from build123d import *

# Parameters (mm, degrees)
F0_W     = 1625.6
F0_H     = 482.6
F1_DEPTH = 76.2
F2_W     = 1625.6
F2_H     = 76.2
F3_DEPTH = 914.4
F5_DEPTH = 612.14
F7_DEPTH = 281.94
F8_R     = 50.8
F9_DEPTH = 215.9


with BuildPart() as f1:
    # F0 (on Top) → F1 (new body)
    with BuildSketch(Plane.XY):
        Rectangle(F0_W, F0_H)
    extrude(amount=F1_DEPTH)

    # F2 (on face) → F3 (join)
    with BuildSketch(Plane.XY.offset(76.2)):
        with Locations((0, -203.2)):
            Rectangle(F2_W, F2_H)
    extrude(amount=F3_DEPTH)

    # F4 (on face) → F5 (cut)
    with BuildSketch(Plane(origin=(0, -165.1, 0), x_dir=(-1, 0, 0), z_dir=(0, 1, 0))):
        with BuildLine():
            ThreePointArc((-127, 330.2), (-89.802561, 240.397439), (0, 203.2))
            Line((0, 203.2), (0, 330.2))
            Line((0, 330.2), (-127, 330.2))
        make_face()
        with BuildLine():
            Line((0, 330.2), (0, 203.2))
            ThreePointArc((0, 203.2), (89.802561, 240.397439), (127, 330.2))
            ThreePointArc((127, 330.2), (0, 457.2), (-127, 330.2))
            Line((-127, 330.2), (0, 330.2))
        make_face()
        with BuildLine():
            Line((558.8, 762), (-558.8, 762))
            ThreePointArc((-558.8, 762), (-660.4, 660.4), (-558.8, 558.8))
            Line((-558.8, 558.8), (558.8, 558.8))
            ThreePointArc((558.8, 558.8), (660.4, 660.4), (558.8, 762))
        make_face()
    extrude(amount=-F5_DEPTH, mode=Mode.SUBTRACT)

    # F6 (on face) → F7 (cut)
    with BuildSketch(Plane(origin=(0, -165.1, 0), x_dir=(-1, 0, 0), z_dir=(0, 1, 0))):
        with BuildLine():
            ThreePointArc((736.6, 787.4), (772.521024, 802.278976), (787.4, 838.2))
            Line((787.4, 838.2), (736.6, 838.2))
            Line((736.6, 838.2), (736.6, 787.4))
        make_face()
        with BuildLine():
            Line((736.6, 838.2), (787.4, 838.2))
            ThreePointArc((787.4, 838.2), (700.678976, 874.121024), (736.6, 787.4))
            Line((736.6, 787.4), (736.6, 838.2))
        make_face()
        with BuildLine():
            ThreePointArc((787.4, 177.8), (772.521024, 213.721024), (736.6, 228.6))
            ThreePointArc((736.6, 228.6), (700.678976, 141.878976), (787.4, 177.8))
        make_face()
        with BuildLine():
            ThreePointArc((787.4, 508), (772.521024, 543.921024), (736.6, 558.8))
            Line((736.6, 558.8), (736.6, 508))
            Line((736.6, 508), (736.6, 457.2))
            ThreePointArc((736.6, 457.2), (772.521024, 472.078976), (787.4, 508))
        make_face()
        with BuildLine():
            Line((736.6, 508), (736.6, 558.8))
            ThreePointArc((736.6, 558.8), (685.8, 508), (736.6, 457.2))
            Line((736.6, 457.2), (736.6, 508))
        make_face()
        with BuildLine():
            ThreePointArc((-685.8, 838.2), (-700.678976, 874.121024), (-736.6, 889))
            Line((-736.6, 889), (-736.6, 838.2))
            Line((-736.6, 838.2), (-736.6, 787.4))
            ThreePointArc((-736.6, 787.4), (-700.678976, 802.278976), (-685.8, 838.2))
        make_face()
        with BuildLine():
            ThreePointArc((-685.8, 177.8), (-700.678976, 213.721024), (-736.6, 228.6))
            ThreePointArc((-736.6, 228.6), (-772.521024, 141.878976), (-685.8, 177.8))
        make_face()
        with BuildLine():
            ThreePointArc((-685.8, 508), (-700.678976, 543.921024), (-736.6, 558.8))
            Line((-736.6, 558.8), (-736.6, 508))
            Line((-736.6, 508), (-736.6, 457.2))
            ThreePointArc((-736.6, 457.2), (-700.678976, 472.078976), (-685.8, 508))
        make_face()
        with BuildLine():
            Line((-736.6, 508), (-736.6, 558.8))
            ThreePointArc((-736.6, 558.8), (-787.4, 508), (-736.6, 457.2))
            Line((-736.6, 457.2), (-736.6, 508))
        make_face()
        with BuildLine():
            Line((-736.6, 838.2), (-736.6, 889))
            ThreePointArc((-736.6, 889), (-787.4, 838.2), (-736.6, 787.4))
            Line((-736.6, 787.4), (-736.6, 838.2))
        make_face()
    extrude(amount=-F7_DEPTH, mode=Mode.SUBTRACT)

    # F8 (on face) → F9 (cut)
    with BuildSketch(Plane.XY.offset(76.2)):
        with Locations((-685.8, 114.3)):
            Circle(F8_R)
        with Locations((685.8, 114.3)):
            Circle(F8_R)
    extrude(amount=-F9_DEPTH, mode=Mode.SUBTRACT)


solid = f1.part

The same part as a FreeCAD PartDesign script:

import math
import FreeCAD as App
import Part
import Sketcher

V = App.Vector
Q = App.Units.Quantity


def add_polygon(sketch, points):
    """Adds a closed chain of lines whose ends are joined by coincident constraints."""
    first, n = sketch.GeometryCount, len(points)
    for a, b in zip(points, points[1:] + points[:1]):
        sketch.addGeometry(Part.LineSegment(App.Vector(*a, 0), App.Vector(*b, 0)), False)
    for i in range(n):
        sketch.addConstraint(Sketcher.Constraint("Coincident", first + i, 2, first + (i + 1) % n, 1))

doc = App.newDocument("Part")
params = doc.addObject("Spreadsheet::Sheet", "Params")
for row, (alias, value) in enumerate([
    ("sketch1_width", "64 in"),
    ("sketch1_height", "19 in"),
    ("pad1_length", "3 in"),
    ("sketch2_width", "64 in"),
    ("sketch2_height", "3 in"),
    ("pad2_length", "36 in"),
    ("sketch3_radius", "5 in"),
    ("sketch3_radius2", "4 in"),
    ("sketch3_width", "44 in"),
    ("pocket1_length", "24.1 in"),
    ("sketch4_radius", "2.0000001 in"),
    ("pocket2_length", "11.1 in"),
    ("sketch5_diameter", "4 in"),
    ("pocket3_length", "8.5 in"),
], start=1):
    params.set(f"A{row}", alias)
    params.set(f"B{row}", "=" + value)
    params.setAlias(f"B{row}", alias)

body = doc.addObject("PartDesign::Body", "Body")

# Sketch on XY plane
sketch1 = doc.addObject("Sketcher::SketchObject", "Sketch")
body.addObject(sketch1)
sketch1.AttachmentSupport = (doc.XY_Plane, [""])
sketch1.MapMode = "FlatFace"
add_polygon(sketch1, [(-812.8, 241.3), (-812.8, -241.3), (812.8, -241.3), (812.8, 241.3)])  # lines 0-3
sketch1.addConstraint([
    Sketcher.Constraint("Vertical", 0),
    Sketcher.Constraint("Horizontal", 1),
    Sketcher.Constraint("Vertical", 2),
    Sketcher.Constraint("Horizontal", 3),
    Sketcher.Constraint("Symmetric", 0, 2, 2, 2, -1, 1),
    Sketcher.Constraint("DistanceX", 1, 1, 1, 2, Q("64 in")),
    Sketcher.Constraint("DistanceY", 0, 2, 0, 1, Q("19 in")),
])
sketch1.setExpression("Constraints[9]", "Params.sketch1_width")
sketch1.setExpression("Constraints[10]", "Params.sketch1_height")
pad1 = doc.addObject("PartDesign::Pad", "Pad")
body.addObject(pad1)
pad1.Profile = sketch1
pad1.setExpression("Length", "Params.pad1_length")

# Sketch on XY plane
sketch2 = doc.addObject("Sketcher::SketchObject", "Sketch001")
body.addObject(sketch2)
sketch2.AttachmentSupport = (doc.XY_Plane, [""])
sketch2.MapMode = "FlatFace"
sketch2.AttachmentOffset = App.Placement(V(0, 0, 3 * 25.4), App.Rotation())
add_polygon(sketch2, [(-812.8, -165.1), (-812.8, -241.3), (812.8, -241.3), (812.8, -165.1)])  # lines 0-3
sketch2.addConstraint([
    Sketcher.Constraint("Vertical", 0),
    Sketcher.Constraint("Horizontal", 1),
    Sketcher.Constraint("Vertical", 2),
    Sketcher.Constraint("Horizontal", 3),
    Sketcher.Constraint("DistanceX", 1, 1, 1, 2, Q("64 in")),
    Sketcher.Constraint("DistanceY", 0, 2, 0, 1, Q("3 in")),
    Sketcher.Constraint("DistanceX", 0, 2, -1, 1, Q("32 in")),
    Sketcher.Constraint("DistanceY", 0, 2, -1, 1, Q("9.5 in")),
])
sketch2.setExpression("Constraints[8]", "Params.sketch2_width")
sketch2.setExpression("Constraints[9]", "Params.sketch2_height")
pad2 = doc.addObject("PartDesign::Pad", "Pad001")
body.addObject(pad2)
pad2.Profile = sketch2
pad2.setExpression("Length", "Params.pad2_length")

# Sketch on XZ plane
sketch3 = doc.addObject("Sketcher::SketchObject", "Sketch002")
body.addObject(sketch3)
sketch3.AttachmentSupport = (doc.XZ_Plane, [""])
sketch3.MapMode = "FlatFace"
sketch3.AttachmentOffset = App.Placement(V(0, 0, 6.5 * 25.4), App.Rotation())
sketch3.addGeometry([
    Part.ArcOfCircle(Part.Circle(V(-0.000001, 330.200001, 0), V(0, 0, 1), 127.000001), math.radians(-90), math.radians(0)),  # 0
    Part.ArcOfCircle(Part.Circle(V(0.000001, 330.200001, 0), V(0, 0, 1), 127.000001), math.radians(-180), math.radians(-90)),  # 1
    Part.ArcOfCircle(Part.Circle(V(0, 330.2, 0), V(0, 0, 1), 127), math.radians(0), math.radians(180)),  # 2
    Part.LineSegment(V(-558.8, 762, 0), V(558.8, 762, 0)),  # 3
    Part.ArcOfCircle(Part.Circle(V(558.8, 660.4, 0), V(0, 0, 1), 101.6), math.radians(-90), math.radians(90)),  # 4
    Part.LineSegment(V(558.8, 558.8, 0), V(-558.8, 558.8, 0)),  # 5
    Part.ArcOfCircle(Part.Circle(V(-558.8, 660.4, 0), V(0, 0, 1), 101.6), math.radians(90), math.radians(270)),  # 6
], False)
sketch3.addConstraint([
    Sketcher.Constraint("Tangent", 0, 1, 1, 2),
    Sketcher.Constraint("Tangent", 1, 1, 2, 2),
    Sketcher.Constraint("Tangent", 2, 1, 0, 2),
    Sketcher.Constraint("Tangent", 3, 2, 4, 2),
    Sketcher.Constraint("Tangent", 4, 1, 5, 1),
    Sketcher.Constraint("Tangent", 5, 2, 6, 2),
    Sketcher.Constraint("Tangent", 6, 1, 3, 1),
    Sketcher.Constraint("Horizontal", 3),
    Sketcher.Constraint("Horizontal", 5),
    Sketcher.Constraint("Symmetric", 1, 1, 2, 1, -2),
    Sketcher.Constraint("PointOnObject", 0, 1, -2),
    Sketcher.Constraint("Horizontal", 2, 3, 1, 1),
    Sketcher.Constraint("Radius", 0, Q("5 in")),
    Sketcher.Constraint("Radius", 4, Q("4 in")),
    Sketcher.Constraint("DistanceX", 3, 1, 3, 2, Q("44 in")),
    Sketcher.Constraint("DistanceY", -1, 1, 0, 3, Q("13 in")),
    Sketcher.Constraint("DistanceX", -1, 1, 4, 3, Q("22 in")),
    Sketcher.Constraint("DistanceY", -1, 1, 4, 3, Q("26 in")),
])
sketch3.setExpression("Constraints[12]", "Params.sketch3_radius")
sketch3.setExpression("Constraints[13]", "Params.sketch3_radius2")
sketch3.setExpression("Constraints[14]", "Params.sketch3_width")
pocket1 = doc.addObject("PartDesign::Pocket", "Pocket")
body.addObject(pocket1)
pocket1.Profile = sketch3
pocket1.setExpression("Length", "Params.pocket1_length")
pocket1.Reversed = True

# Sketch on XZ plane
sketch4 = doc.addObject("Sketcher::SketchObject", "Sketch003")
body.addObject(sketch4)
sketch4.AttachmentSupport = (doc.XZ_Plane, [""])
sketch4.MapMode = "FlatFace"
sketch4.AttachmentOffset = App.Placement(V(0, 0, 6.5 * 25.4), App.Rotation())
sketch4.addGeometry([
    Part.ArcOfCircle(Part.Circle(V(-736.599998, 838.200002, 0), V(0, 0, 1), 50.800002), math.radians(-179.999998), math.radians(-90.000002)),  # 0
    Part.ArcOfCircle(Part.Circle(V(-736.6, 838.2, 0), V(0, 0, 1), 50.8), math.radians(-90), math.radians(180)),  # 1
    Part.ArcOfCircle(Part.Circle(V(-736.599998, 177.799998, 0), V(0, 0, 1), 50.800002), math.radians(90.000002), math.radians(179.999998)),  # 2
    Part.ArcOfCircle(Part.Circle(V(-736.6, 177.8, 0), V(0, 0, 1), 50.8), math.radians(-180), math.radians(90)),  # 3
    Part.ArcOfCircle(Part.Circle(V(-736.599998, 507.999998, 0), V(0, 0, 1), 50.800002), math.radians(90.000002), math.radians(179.999998)),  # 4
    Part.ArcOfCircle(Part.Circle(V(-736.6, 508, 0), V(0, 0, 1), 50.8), math.radians(-90), math.radians(90)),  # 5
    Part.ArcOfCircle(Part.Circle(V(-736.599998, 508.000002, 0), V(0, 0, 1), 50.800002), math.radians(-179.999998), math.radians(-90.000002)),  # 6
    Part.ArcOfCircle(Part.Circle(V(736.600002, 838.199998, 0), V(0, 0, 1), 50.800002), math.radians(90.000002), math.radians(179.999998)),  # 7
    Part.ArcOfCircle(Part.Circle(V(736.6, 838.2, 0), V(0, 0, 1), 50.8), math.radians(-90), math.radians(90)),  # 8
    Part.ArcOfCircle(Part.Circle(V(736.600002, 838.200002, 0), V(0, 0, 1), 50.800002), math.radians(-179.999998), math.radians(-90.000002)),  # 9
    Part.ArcOfCircle(Part.Circle(V(736.600002, 177.799998, 0), V(0, 0, 1), 50.800002), math.radians(90.000002), math.radians(179.999998)),  # 10
    Part.ArcOfCircle(Part.Circle(V(736.6, 177.8, 0), V(0, 0, 1), 50.8), math.radians(-180), math.radians(90)),  # 11
    Part.ArcOfCircle(Part.Circle(V(736.600002, 507.999998, 0), V(0, 0, 1), 50.800002), math.radians(90.000002), math.radians(179.999998)),  # 12
    Part.ArcOfCircle(Part.Circle(V(736.6, 508, 0), V(0, 0, 1), 50.8), math.radians(-90), math.radians(90)),  # 13
    Part.ArcOfCircle(Part.Circle(V(736.600002, 508.000002, 0), V(0, 0, 1), 50.800002), math.radians(-179.999998), math.radians(-90.000002)),  # 14
], False)
sketch4.addConstraint([
    Sketcher.Constraint("Tangent", 0, 1, 1, 2),
    Sketcher.Constraint("Coincident", 1, 1, 0, 2),
    Sketcher.Constraint("Tangent", 2, 1, 3, 2),
    Sketcher.Constraint("Coincident", 3, 1, 2, 2),
    Sketcher.Constraint("Tangent", 4, 1, 5, 2),
    Sketcher.Constraint("Tangent", 5, 1, 6, 2),
    Sketcher.Constraint("Tangent", 6, 1, 4, 2),
    Sketcher.Constraint("Tangent", 7, 1, 8, 2),
    Sketcher.Constraint("Tangent", 8, 1, 9, 2),
    Sketcher.Constraint("Tangent", 9, 1, 7, 2),
    Sketcher.Constraint("Tangent", 10, 1, 11, 2),
    Sketcher.Constraint("Coincident", 11, 1, 10, 2),
    Sketcher.Constraint("Tangent", 12, 1, 13, 2),
    Sketcher.Constraint("Tangent", 13, 1, 14, 2),
    Sketcher.Constraint("Tangent", 14, 1, 12, 2),
    Sketcher.Constraint("Equal", 1, 2),
    Sketcher.Constraint("Equal", 3, 4),
    Sketcher.Constraint("Equal", 6, 7),
    Sketcher.Constraint("Equal", 9, 10),
    Sketcher.Constraint("Equal", 11, 12),
    Sketcher.Constraint("Symmetric", 0, 3, 7, 3, -2),
    Sketcher.Constraint("Symmetric", 2, 3, 10, 3, -2),
    Sketcher.Constraint("Symmetric", 4, 3, 12, 3, -2),
    Sketcher.Constraint("Horizontal", 9, 3, 0, 1),
    Sketcher.Constraint("Horizontal", 11, 3, 3, 1),
    Sketcher.Constraint("Horizontal", 14, 3, 6, 1),
    Sketcher.Constraint("Horizontal", 0, 1, 9, 1),
    Sketcher.Constraint("Horizontal", 3, 1, 11, 1),
    Sketcher.Constraint("Horizontal", 6, 1, 14, 1),
    Sketcher.Constraint("Vertical", 1, 3, 2, 3),
    Sketcher.Constraint("Vertical", 3, 3, 4, 3),
    Sketcher.Constraint("Vertical", 6, 3, 1, 1),
    Sketcher.Constraint("Vertical", 1, 1, 2, 1),
    Sketcher.Constraint("Vertical", 2, 1, 4, 1),
    Sketcher.Constraint("Vertical", 4, 1, 5, 1),
    Sketcher.Constraint("Vertical", 14, 3, 7, 1),
    Sketcher.Constraint("Vertical", 7, 1, 8, 1),
    Sketcher.Constraint("Vertical", 8, 1, 10, 1),
    Sketcher.Constraint("Vertical", 10, 1, 12, 1),
    Sketcher.Constraint("Vertical", 12, 1, 13, 1),
    Sketcher.Constraint("Radius", 0, Q("2.0000001 in")),
    Sketcher.Constraint("DistanceX", 0, 3, -1, 1, Q("28.9999999 in")),
    Sketcher.Constraint("DistanceY", -1, 1, 0, 3, Q("33.0000001 in")),
    Sketcher.Constraint("DistanceY", -1, 1, 2, 3, Q("6.9999999 in")),
    Sketcher.Constraint("DistanceY", -1, 1, 4, 3, Q("19.9999999 in")),
])
sketch4.setExpression("Constraints[40]", "Params.sketch4_radius")
pocket2 = doc.addObject("PartDesign::Pocket", "Pocket001")
body.addObject(pocket2)
pocket2.Profile = sketch4
pocket2.setExpression("Length", "Params.pocket2_length")
pocket2.Reversed = True

# Sketch on XY plane
sketch5 = doc.addObject("Sketcher::SketchObject", "Sketch004")
body.addObject(sketch5)
sketch5.AttachmentSupport = (doc.XY_Plane, [""])
sketch5.MapMode = "FlatFace"
sketch5.AttachmentOffset = App.Placement(V(0, 0, 3 * 25.4), App.Rotation())
sketch5.addGeometry([
    Part.Circle(V(-685.8, 114.3, 0), V(0, 0, 1), 50.8),
    Part.Circle(V(685.8, 114.3, 0), V(0, 0, 1), 50.8),
], False)
sketch5.addConstraint([
    Sketcher.Constraint("Equal", 0, 1),
    Sketcher.Constraint("Symmetric", 0, 3, 1, 3, -2),
    Sketcher.Constraint("Diameter", 0, Q("4 in")),
    Sketcher.Constraint("DistanceX", 0, 3, -1, 1, Q("27 in")),
    Sketcher.Constraint("DistanceY", -1, 1, 0, 3, Q("4.5 in")),
])
sketch5.setExpression("Constraints[2]", "Params.sketch5_diameter")
pocket3 = doc.addObject("PartDesign::Pocket", "Pocket002")
body.addObject(pocket3)
pocket3.Profile = sketch5
pocket3.setExpression("Length", "Params.pocket3_length")

doc.recompute()
